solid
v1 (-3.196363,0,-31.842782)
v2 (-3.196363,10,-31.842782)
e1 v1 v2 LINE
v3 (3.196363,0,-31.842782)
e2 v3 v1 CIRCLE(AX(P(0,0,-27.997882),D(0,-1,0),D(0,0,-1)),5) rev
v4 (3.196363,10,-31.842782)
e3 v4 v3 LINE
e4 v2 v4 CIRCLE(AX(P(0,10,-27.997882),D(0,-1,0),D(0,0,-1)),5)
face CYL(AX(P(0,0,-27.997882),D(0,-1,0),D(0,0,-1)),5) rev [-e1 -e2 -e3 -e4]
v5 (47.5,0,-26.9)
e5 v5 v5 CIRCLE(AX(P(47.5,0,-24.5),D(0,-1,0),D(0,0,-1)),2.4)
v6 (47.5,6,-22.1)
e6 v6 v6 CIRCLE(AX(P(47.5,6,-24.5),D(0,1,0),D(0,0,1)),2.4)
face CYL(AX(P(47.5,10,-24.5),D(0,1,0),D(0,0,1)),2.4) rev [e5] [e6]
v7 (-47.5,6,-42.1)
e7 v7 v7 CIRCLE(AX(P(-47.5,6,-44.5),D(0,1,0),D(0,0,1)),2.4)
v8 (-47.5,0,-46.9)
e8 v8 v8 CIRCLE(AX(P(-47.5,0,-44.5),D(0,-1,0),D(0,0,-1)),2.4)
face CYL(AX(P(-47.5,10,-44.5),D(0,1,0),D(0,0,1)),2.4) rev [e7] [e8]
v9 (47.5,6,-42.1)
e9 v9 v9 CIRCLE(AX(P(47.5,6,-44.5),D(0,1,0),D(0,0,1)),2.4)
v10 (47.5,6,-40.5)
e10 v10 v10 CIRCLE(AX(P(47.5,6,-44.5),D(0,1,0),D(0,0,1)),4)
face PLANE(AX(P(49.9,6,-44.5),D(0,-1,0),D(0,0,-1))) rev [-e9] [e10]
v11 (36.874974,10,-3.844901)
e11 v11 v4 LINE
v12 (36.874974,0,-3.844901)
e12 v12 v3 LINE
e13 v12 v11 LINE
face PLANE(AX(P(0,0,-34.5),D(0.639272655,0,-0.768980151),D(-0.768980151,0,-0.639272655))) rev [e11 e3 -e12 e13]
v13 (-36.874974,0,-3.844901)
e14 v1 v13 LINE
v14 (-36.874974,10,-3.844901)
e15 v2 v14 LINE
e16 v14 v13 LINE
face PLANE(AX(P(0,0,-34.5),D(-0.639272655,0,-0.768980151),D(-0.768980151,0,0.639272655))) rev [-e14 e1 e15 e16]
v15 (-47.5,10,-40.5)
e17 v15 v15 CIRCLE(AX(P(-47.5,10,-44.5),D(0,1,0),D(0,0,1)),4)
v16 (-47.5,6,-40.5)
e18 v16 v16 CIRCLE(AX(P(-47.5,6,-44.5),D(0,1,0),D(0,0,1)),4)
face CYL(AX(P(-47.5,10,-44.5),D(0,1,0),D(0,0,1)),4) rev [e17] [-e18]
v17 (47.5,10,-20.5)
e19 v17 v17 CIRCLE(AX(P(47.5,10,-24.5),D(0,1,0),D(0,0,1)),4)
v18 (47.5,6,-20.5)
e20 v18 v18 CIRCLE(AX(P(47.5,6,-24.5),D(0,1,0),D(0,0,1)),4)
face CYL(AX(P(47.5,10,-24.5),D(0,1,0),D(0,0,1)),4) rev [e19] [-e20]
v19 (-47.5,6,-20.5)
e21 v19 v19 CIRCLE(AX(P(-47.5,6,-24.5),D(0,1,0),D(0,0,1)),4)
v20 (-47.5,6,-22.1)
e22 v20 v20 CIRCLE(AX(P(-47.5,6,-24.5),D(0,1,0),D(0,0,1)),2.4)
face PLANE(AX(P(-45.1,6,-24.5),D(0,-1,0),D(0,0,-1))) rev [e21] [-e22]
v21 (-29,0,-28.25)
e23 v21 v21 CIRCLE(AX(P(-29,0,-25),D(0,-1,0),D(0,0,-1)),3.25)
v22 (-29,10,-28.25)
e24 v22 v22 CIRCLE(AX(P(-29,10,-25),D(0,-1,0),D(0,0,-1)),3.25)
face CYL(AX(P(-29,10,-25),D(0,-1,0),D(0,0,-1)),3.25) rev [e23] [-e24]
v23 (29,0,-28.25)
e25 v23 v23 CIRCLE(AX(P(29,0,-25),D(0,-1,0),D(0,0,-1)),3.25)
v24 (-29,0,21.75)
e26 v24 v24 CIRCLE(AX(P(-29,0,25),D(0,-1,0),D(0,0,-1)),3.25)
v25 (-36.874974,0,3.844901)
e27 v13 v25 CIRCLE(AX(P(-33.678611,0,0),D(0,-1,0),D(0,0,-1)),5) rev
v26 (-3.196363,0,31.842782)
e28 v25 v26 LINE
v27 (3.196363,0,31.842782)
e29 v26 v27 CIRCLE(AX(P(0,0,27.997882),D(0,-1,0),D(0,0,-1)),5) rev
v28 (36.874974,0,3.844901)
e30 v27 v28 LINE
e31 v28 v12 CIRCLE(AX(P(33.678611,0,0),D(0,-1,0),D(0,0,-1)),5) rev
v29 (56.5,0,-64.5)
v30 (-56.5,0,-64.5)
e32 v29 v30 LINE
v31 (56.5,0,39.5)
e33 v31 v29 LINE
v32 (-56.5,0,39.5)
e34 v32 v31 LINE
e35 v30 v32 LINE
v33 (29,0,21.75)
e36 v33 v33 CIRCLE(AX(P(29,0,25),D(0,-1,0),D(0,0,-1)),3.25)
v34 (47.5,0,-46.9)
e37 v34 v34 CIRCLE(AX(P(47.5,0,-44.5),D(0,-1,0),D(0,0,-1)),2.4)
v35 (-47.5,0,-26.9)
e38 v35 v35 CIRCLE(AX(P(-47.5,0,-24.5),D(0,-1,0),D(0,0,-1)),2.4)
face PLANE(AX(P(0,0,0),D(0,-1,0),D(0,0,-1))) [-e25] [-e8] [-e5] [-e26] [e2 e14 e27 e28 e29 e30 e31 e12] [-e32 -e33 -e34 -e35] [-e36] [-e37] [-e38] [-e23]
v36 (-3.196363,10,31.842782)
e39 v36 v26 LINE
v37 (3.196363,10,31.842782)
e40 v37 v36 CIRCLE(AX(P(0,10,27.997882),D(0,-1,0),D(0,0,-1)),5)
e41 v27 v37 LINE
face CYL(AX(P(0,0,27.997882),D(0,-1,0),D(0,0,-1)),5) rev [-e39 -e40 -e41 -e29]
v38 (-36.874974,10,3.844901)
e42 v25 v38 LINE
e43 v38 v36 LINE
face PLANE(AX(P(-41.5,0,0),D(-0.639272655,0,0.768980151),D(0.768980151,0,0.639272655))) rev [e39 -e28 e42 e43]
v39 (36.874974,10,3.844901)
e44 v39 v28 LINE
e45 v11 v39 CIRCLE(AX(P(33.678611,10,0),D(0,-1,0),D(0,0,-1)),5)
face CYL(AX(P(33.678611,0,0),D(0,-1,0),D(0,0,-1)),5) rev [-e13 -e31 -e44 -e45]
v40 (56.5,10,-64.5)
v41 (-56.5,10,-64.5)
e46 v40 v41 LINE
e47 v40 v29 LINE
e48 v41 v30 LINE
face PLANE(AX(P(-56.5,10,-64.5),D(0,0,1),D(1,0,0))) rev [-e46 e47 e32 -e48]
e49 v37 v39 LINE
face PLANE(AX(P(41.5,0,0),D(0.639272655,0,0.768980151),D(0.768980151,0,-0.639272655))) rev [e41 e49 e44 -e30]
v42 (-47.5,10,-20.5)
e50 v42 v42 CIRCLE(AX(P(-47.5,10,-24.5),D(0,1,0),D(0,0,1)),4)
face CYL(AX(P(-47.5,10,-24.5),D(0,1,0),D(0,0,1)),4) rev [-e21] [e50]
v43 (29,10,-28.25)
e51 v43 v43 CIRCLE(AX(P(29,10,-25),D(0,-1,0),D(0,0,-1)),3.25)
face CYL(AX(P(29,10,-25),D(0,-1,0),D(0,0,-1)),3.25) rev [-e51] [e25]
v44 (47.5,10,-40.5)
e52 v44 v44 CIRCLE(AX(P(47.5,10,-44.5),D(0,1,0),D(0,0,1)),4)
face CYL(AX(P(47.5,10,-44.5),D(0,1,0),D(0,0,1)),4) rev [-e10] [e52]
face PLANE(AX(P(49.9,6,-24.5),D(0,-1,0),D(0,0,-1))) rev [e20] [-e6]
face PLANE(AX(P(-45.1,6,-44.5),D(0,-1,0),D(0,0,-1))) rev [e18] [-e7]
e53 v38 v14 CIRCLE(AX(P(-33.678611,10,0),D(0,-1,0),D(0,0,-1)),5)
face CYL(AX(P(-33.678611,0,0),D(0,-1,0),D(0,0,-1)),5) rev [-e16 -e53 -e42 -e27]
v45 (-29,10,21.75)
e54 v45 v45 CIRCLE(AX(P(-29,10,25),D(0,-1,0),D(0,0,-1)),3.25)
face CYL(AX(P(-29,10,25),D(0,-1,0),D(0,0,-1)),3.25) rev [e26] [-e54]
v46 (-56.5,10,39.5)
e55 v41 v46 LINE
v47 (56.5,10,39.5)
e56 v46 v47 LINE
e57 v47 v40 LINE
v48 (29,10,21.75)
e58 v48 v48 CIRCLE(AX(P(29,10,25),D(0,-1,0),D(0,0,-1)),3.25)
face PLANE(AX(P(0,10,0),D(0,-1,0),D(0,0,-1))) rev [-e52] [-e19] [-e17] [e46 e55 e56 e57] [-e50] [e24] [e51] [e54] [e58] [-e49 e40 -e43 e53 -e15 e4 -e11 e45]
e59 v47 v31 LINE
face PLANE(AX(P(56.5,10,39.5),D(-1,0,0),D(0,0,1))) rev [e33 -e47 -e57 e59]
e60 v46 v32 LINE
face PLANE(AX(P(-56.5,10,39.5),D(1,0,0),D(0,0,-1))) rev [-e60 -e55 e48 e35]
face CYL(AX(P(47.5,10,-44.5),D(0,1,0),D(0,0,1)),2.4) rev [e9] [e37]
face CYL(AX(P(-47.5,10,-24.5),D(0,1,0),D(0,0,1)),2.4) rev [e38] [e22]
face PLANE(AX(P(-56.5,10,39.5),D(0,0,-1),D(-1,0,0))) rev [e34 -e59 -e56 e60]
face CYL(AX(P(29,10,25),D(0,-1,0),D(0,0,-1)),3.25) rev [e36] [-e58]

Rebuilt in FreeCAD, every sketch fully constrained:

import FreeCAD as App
import Part
import Sketcher
Q = App.Units.Quantity


def edges_at(feature, points):
    """Names of the edges that pass closest to the given points."""
    edges = feature.Shape.Edges
    near = lambda p: min(range(len(edges)), key=lambda i: edges[i].distToShape(Part.Vertex(*p))[0])
    return sorted({f"Edge{near(p) + 1}" for p in points})


def add_polygon(sketch, points):
    """Adds a closed chain of lines whose ends are joined by coincident constraints."""
    first, n = sketch.GeometryCount, len(points)
    for a, b in zip(points, points[1:] + points[:1]):
        sketch.addGeometry(Part.LineSegment(App.Vector(*a, 0), App.Vector(*b, 0)), False)
    for i in range(n):
        sketch.addConstraint(Sketcher.Constraint("Coincident", first + i, 2, first + (i + 1) % n, 1))

doc = App.newDocument("Part")
params = doc.addObject("Spreadsheet::Sheet", "Params")
for row, (alias, value) in enumerate([
    ("sketch1_width", "113 mm"),
    ("sketch1_height", "104 mm"),
    ("pad1_length", "10 mm"),
    ("sketch2_diameter", "6.5 mm"),
    ("pocket1_length", "10 mm"),
    ("pocket2_length", "10 mm"),
    ("fillet_radius", "5 mm"),
    ("sketch4_diameter", "4.8 mm"),
    ("hole_diameter", "4.8 mm"),
    ("hole_cbore_diameter", "8 mm"),
    ("hole_cbore_depth", "4 mm"),
], start=1):
    params.set(f"A{row}", alias)
    params.set(f"B{row}", "=" + value)
    params.setAlias(f"B{row}", alias)

body = doc.addObject("PartDesign::Body", "Body")

sketch1 = body.newObject("Sketcher::SketchObject", "Sketch")
sketch1.AttachmentSupport = (doc.getObject("XZ_Plane"), [""])
sketch1.MapMode = "FlatFace"
add_polygon(sketch1, [(-56.5, -64.5), (-56.5, 39.5), (56.5, 39.5), (56.5, -64.5)])
sketch1.addConstraint([
    Sketcher.Constraint("Vertical", 0),
    Sketcher.Constraint("Horizontal", 1),
    Sketcher.Constraint("Vertical", 2),
    Sketcher.Constraint("Horizontal", 3),
    Sketcher.Constraint("DistanceX", 1, 1, 1, 2, Q("113 mm")),
    Sketcher.Constraint("DistanceY", 0, 1, 0, 2, Q("104 mm")),
    Sketcher.Constraint("DistanceX", 0, 2, -1, 1, Q("56.5 mm")),
    Sketcher.Constraint("DistanceY", -1, 1, 0, 2, Q("39.5 mm")),
])
sketch1.setExpression("Constraints[8]", "Params.sketch1_width")
sketch1.setExpression("Constraints[9]", "Params.sketch1_height")
pad1 = body.newObject("PartDesign::Pad", "Pad")
pad1.Profile = sketch1
pad1.setExpression("Length", "Params.pad1_length")
pad1.Reversed = True

sketch2 = body.newObject("Sketcher::SketchObject", "Sketch001")
sketch2.AttachmentSupport = (doc.getObject("XZ_Plane"), [""])
sketch2.MapMode = "FlatFace"
sketch2.addGeometry([
    Part.Circle(App.Vector(-29, 25, 0), App.Vector(0, 0, 1), 3.25),
    Part.Circle(App.Vector(-29, -25, 0), App.Vector(0, 0, 1), 3.25),
    Part.Circle(App.Vector(29, -25, 0), App.Vector(0, 0, 1), 3.25),
    Part.Circle(App.Vector(29, 25, 0), App.Vector(0, 0, 1), 3.25),
], False)
sketch2.addConstraint([
    Sketcher.Constraint("Equal", 0, 1),
    Sketcher.Constraint("Equal", 1, 2),
    Sketcher.Constraint("Equal", 2, 3),
    Sketcher.Constraint("Symmetric", 0, 3, 2, 3, -1, 1),
    Sketcher.Constraint("Symmetric", 1, 3, 3, 3, -1, 1),
    Sketcher.Constraint("Symmetric", 1, 3, 2, 3, -2),
    Sketcher.Constraint("Diameter", 0, Q("6.5 mm")),
    Sketcher.Constraint("DistanceX", 0, 3, -1, 1, Q("29 mm")),
    Sketcher.Constraint("DistanceY", -1, 1, 0, 3, Q("25 mm")),
])
sketch2.setExpression("Constraints[6]", "Params.sketch2_diameter")
pocket1 = body.newObject("PartDesign::Pocket", "Pocket")
pocket1.Profile = sketch2
pocket1.setExpression("Length", "Params.pocket1_length")

sketch3 = body.newObject("Sketcher::SketchObject", "Sketch002")
sketch3.AttachmentSupport = (doc.getObject("XZ_Plane"), [""])
sketch3.MapMode = "FlatFace"
sketch3.AttachmentOffset = App.Placement(App.Vector(0, 0, -10), App.Rotation())
add_polygon(sketch3, [(0, -34.5), (-41.5, 0), (0, 34.5), (41.5, 0)])
sketch3.addConstraint([
    Sketcher.Constraint("Symmetric", 0, 2, 2, 2, -1, 1),
    Sketcher.Constraint("Symmetric", 1, 2, 3, 2, -1, 1),
    Sketcher.Constraint("PointOnObject", 0, 2, -1),
    Sketcher.Constraint("PointOnObject", 1, 2, -2),
    Sketcher.Constraint("DistanceX", 0, 2, 2, 2, Q("83 mm")),
    Sketcher.Constraint("DistanceY", 3, 2, 1, 2, Q("69 mm")),
])
pocket2 = body.newObject("PartDesign::Pocket", "Pocket001")
pocket2.Profile = sketch3
pocket2.setExpression("Length", "Params.pocket2_length")
pocket2.Reversed = True
doc.recompute()

fillet = body.newObject("PartDesign::Fillet", "Fillet")
fillet.Base = (pocket2, edges_at(pocket2, [
    (0, 5, -34.5),
    (41.5, 5, 0),
    (0, 5, 34.5),
    (-41.5, 5, 0),
]))
fillet.setExpression("Radius", "Params.fillet_radius")

sketch4 = body.newObject("Sketcher::SketchObject", "Sketch003")
sketch4.AttachmentSupport = (doc.getObject("XZ_Plane"), [""])
sketch4.MapMode = "FlatFace"
sketch4.AttachmentOffset = App.Placement(App.Vector(0, 0, -10), App.Rotation())
sketch4.addGeometry([
    Part.Circle(App.Vector(47.5, -44.5, 0), App.Vector(0, 0, 1), 2.4),
    Part.Circle(App.Vector(47.5, -24.5, 0), App.Vector(0, 0, 1), 2.4),
    Part.Circle(App.Vector(-47.5, -24.5, 0), App.Vector(0, 0, 1), 2.4),
    Part.Circle(App.Vector(-47.5, -44.5, 0), App.Vector(0, 0, 1), 2.4),
], False)
sketch4.addConstraint([
    Sketcher.Constraint("Equal", 0, 1),
    Sketcher.Constraint("Equal", 1, 2),
    Sketcher.Constraint("Equal", 2, 3),
    Sketcher.Constraint("Symmetric", 1, 3, 2, 3, -2),
    Sketcher.Constraint("Symmetric", 0, 3, 3, 3, -2),
    Sketcher.Constraint("Vertical", 0, 3, 1, 3),
    Sketcher.Constraint("Diameter", 0, Q("4.8 mm")),
    Sketcher.Constraint("DistanceY", 0, 3, 1, 3, Q("20 mm")),
    Sketcher.Constraint("DistanceX", 2, 3, 1, 3, Q("95 mm")),
    Sketcher.Constraint("DistanceY", 0, 3, -1, 1, Q("44.5 mm")),
])
sketch4.setExpression("Constraints[6]", "Params.sketch4_diameter")
doc.recompute()
hole = body.newObject("PartDesign::Hole", "Hole")
hole.Profile = sketch4
hole.ThreadType = "None"
hole.setExpression("Diameter", "Params.hole_diameter")
hole.DepthType = "ThroughAll"
hole.HoleCutType = "Counterbore"
hole.setExpression("HoleCutDiameter", "Params.hole_cbore_diameter")
hole.setExpression("HoleCutDepth", "Params.hole_cbore_depth")
hole.Reversed = True

doc.recompute()
